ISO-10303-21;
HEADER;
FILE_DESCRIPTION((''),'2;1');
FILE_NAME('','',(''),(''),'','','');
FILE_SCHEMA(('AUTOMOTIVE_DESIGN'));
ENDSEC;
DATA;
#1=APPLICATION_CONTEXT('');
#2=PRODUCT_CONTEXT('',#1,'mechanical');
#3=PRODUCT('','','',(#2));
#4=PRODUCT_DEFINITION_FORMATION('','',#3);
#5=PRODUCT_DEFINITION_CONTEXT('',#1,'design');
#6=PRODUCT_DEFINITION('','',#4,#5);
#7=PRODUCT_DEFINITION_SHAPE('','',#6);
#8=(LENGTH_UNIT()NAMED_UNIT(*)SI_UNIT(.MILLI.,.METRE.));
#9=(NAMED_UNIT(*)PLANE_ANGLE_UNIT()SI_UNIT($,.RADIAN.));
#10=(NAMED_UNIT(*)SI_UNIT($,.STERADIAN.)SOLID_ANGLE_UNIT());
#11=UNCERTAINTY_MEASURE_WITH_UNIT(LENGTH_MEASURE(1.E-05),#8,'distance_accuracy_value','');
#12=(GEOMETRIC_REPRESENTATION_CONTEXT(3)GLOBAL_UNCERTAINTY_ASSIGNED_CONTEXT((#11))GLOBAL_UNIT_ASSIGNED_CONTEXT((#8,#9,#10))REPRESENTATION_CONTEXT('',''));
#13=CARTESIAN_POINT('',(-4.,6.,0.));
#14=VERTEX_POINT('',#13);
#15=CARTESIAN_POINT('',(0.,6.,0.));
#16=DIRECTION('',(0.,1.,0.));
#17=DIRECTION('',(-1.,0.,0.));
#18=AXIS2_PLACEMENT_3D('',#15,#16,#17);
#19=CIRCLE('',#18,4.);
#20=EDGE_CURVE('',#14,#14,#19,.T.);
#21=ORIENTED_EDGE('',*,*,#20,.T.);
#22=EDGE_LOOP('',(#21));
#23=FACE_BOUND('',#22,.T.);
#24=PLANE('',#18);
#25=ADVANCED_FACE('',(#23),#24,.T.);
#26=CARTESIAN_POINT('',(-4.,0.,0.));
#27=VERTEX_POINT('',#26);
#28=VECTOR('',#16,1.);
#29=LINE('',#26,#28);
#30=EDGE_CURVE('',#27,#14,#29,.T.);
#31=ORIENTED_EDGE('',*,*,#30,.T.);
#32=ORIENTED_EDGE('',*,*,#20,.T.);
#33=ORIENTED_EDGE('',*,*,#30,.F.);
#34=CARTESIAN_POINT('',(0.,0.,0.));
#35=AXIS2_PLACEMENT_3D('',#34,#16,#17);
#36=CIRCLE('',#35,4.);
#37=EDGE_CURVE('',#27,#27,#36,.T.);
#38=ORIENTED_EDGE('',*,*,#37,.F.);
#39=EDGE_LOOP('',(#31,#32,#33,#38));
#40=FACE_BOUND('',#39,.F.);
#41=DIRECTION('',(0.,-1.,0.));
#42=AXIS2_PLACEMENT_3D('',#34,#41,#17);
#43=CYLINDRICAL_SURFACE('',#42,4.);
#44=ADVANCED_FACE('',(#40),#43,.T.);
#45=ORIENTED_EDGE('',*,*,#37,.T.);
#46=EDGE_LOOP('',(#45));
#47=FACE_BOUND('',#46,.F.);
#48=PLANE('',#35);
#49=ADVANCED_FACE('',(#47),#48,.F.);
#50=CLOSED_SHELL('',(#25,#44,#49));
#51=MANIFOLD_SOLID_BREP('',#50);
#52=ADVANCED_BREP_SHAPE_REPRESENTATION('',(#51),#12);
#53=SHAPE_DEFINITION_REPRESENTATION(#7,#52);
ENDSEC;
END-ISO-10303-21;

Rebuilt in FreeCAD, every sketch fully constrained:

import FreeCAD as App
import Part
import Sketcher
from FreeCAD import Vector

doc = App.newDocument("Part")
body = doc.addObject("PartDesign::Body", "Body")

sketch1 = body.newObject("Sketcher::SketchObject", "Sketch")
sketch1.AttachmentSupport = (doc.getObject("XZ_Plane"), [""])
sketch1.MapMode = "FlatFace"
sketch1.addGeometry(Part.Circle(Vector(0, 0, 0), Vector(0, 0, 1), 4), False)
sketch1.addConstraint([
    Sketcher.Constraint("Coincident", 0, 3, -1, 1),
    Sketcher.Constraint("Diameter", 0, 8.0),
])
pad1 = body.newObject("PartDesign::Pad", "Pad")
pad1.Profile = sketch1
pad1.Length = 6
pad1.Reversed = True

doc.recompute()
